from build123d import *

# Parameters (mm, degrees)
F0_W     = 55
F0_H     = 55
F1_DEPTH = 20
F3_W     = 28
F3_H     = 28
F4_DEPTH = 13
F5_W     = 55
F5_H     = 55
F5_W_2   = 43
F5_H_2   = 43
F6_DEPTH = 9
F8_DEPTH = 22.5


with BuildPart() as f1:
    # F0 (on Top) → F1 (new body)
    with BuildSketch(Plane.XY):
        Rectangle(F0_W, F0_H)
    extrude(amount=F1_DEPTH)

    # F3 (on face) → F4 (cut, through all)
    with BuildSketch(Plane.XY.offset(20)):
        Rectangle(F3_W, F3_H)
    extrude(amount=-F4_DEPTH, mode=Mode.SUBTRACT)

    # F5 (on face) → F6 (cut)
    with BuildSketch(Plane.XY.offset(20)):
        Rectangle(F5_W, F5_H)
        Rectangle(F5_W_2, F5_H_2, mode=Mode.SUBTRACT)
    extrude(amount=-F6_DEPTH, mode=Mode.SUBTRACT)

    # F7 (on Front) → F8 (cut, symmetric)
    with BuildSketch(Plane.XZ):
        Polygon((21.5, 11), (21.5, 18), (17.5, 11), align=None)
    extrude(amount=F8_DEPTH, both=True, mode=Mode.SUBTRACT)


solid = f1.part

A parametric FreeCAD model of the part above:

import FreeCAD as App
import Part
import Sketcher

V = App.Vector

doc = App.newDocument("Part")
body = doc.addObject("PartDesign::Body", "Body")

sketch1 = doc.addObject("Sketcher::SketchObject", "Sketch")
body.addObject(sketch1)
sketch1.AttachmentSupport = (doc.XY_Plane, [""])
sketch1.MapMode = "FlatFace"
sketch1.addGeometry([
    Part.LineSegment(V(-27.5, 27.5, 0), V(-27.5, -27.5, 0)),
    Part.LineSegment(V(-27.5, -27.5, 0), V(27.5, -27.5, 0)),
    Part.LineSegment(V(27.5, -27.5, 0), V(27.5, 27.5, 0)),
    Part.LineSegment(V(27.5, 27.5, 0), V(-27.5, 27.5, 0)),
], False)
sketch1.addConstraint([
    Sketcher.Constraint("Coincident", 0, 2, 1, 1),
    Sketcher.Constraint("Coincident", 1, 2, 2, 1),
    Sketcher.Constraint("Coincident", 2, 2, 3, 1),
    Sketcher.Constraint("Coincident", 3, 2, 0, 1),
    Sketcher.Constraint("Vertical", 0),
    Sketcher.Constraint("Horizontal", 1),
    Sketcher.Constraint("Vertical", 2),
    Sketcher.Constraint("Horizontal", 3),
    Sketcher.Constraint("Symmetric", 0, 2, 2, 2, -1, 1),
    Sketcher.Constraint("Equal", 3, 0),
    Sketcher.Constraint("DistanceX", 1, 1, 1, 2, 55.0),
])
pad1 = doc.addObject("PartDesign::Pad", "Pad")
body.addObject(pad1)
pad1.Profile = sketch1
pad1.Length = 20

sketch2 = doc.addObject("Sketcher::SketchObject", "Sketch001")
body.addObject(sketch2)
sketch2.AttachmentSupport = (doc.XY_Plane, [""])
sketch2.MapMode = "FlatFace"
sketch2.AttachmentOffset = App.Placement(V(0, 0, 20), App.Rotation())
sketch2.addGeometry([
    Part.LineSegment(V(-14, 14, 0), V(-14, -14, 0)),
    Part.LineSegment(V(-14, -14, 0), V(14, -14, 0)),
    Part.LineSegment(V(14, -14, 0), V(14, 14, 0)),
    Part.LineSegment(V(14, 14, 0), V(-14, 14, 0)),
], False)
sketch2.addConstraint([
    Sketcher.Constraint("Coincident", 0, 2, 1, 1),
    Sketcher.Constraint("Coincident", 1, 2, 2, 1),
    Sketcher.Constraint("Coincident", 2, 2, 3, 1),
    Sketcher.Constraint("Coincident", 3, 2, 0, 1),
    Sketcher.Constraint("Vertical", 0),
    Sketcher.Constraint("Horizontal", 1),
    Sketcher.Constraint("Vertical", 2),
    Sketcher.Constraint("Horizontal", 3),
    Sketcher.Constraint("Symmetric", 0, 2, 2, 2, -1, 1),
    Sketcher.Constraint("Equal", 3, 0),
    Sketcher.Constraint("DistanceX", 1, 1, 1, 2, 28.0),
])
pocket1 = doc.addObject("PartDesign::Pocket", "Pocket")
body.addObject(pocket1)
pocket1.Profile = sketch2
pocket1.Length = 13

sketch3 = doc.addObject("Sketcher::SketchObject", "Sketch002")
body.addObject(sketch3)
sketch3.AttachmentSupport = (doc.XY_Plane, [""])
sketch3.MapMode = "FlatFace"
sketch3.AttachmentOffset = App.Placement(V(0, 0, 20), App.Rotation())
sketch3.addGeometry([
    Part.LineSegment(V(-27.5, 27.5, 0), V(-27.5, -27.5, 0)),
    Part.LineSegment(V(-27.5, -27.5, 0), V(27.5, -27.5, 0)),
    Part.LineSegment(V(27.5, -27.5, 0), V(27.5, 27.5, 0)),
    Part.LineSegment(V(27.5, 27.5, 0), V(-27.5, 27.5, 0)),
    Part.LineSegment(V(21.5, -21.5, 0), V(-21.5, -21.5, 0)),
    Part.LineSegment(V(-21.5, -21.5, 0), V(-21.5, 21.5, 0)),
    Part.LineSegment(V(-21.5, 21.5, 0), V(21.5, 21.5, 0)),
    Part.LineSegment(V(21.5, 21.5, 0), V(21.5, -21.5, 0)),
], False)
sketch3.addConstraint([
    Sketcher.Constraint("Coincident", 0, 2, 1, 1),
    Sketcher.Constraint("Coincident", 1, 2, 2, 1),
    Sketcher.Constraint("Coincident", 2, 2, 3, 1),
    Sketcher.Constraint("Coincident", 3, 2, 0, 1),
    Sketcher.Constraint("Coincident", 4, 2, 5, 1),
    Sketcher.Constraint("Coincident", 5, 2, 6, 1),
    Sketcher.Constraint("Coincident", 6, 2, 7, 1),
    Sketcher.Constraint("Coincident", 7, 2, 4, 1),
    Sketcher.Constraint("Vertical", 0),
    Sketcher.Constraint("Horizontal", 1),
    Sketcher.Constraint("Vertical", 2),
    Sketcher.Constraint("Horizontal", 3),
    Sketcher.Constraint("Horizontal", 4),
    Sketcher.Constraint("Vertical", 5),
    Sketcher.Constraint("Horizontal", 6),
    Sketcher.Constraint("Vertical", 7),
    Sketcher.Constraint("Symmetric", 0, 2, 2, 2, -1, 1),
    Sketcher.Constraint("Symmetric", 4, 2, 6, 2, -1, 1),
    Sketcher.Constraint("Equal", 3, 0),
    Sketcher.Constraint("Equal", 6, 5),
    Sketcher.Constraint("DistanceX", 1, 1, 1, 2, 55.0),
    Sketcher.Constraint("DistanceX", 4, 2, 4, 1, 43.0),
])
pocket2 = doc.addObject("PartDesign::Pocket", "Pocket001")
body.addObject(pocket2)
pocket2.Profile = sketch3
pocket2.Length = 9

sketch4 = doc.addObject("Sketcher::SketchObject", "Sketch003")
body.addObject(sketch4)
sketch4.AttachmentSupport = (doc.XZ_Plane, [""])
sketch4.MapMode = "FlatFace"
sketch4.addGeometry([
    Part.LineSegment(V(21.5, 11, 0), V(21.5, 18, 0)),
    Part.LineSegment(V(21.5, 18, 0), V(17.5, 11, 0)),
    Part.LineSegment(V(17.5, 11, 0), V(21.5, 11, 0)),
], False)
sketch4.addConstraint([
    Sketcher.Constraint("Coincident", 0, 2, 1, 1),
    Sketcher.Constraint("Coincident", 1, 2, 2, 1),
    Sketcher.Constraint("Coincident", 2, 2, 0, 1),
    Sketcher.Constraint("Vertical", 0),
    Sketcher.Constraint("Horizontal", 2),
    Sketcher.Constraint("DistanceX", 2, 1, 2, 2, 4.0),
    Sketcher.Constraint("DistanceY", 0, 1, 0, 2, 7.0),
    Sketcher.Constraint("DistanceY", -1, 1, 0, 2, 18.0),
    Sketcher.Constraint("DistanceX", -1, 1, 0, 2, 21.5),
])
pocket3 = doc.addObject("PartDesign::Pocket", "Pocket002")
body.addObject(pocket3)
pocket3.Profile = sketch4
pocket3.Length = 45
pocket3.Midplane = True

doc.recompute()
